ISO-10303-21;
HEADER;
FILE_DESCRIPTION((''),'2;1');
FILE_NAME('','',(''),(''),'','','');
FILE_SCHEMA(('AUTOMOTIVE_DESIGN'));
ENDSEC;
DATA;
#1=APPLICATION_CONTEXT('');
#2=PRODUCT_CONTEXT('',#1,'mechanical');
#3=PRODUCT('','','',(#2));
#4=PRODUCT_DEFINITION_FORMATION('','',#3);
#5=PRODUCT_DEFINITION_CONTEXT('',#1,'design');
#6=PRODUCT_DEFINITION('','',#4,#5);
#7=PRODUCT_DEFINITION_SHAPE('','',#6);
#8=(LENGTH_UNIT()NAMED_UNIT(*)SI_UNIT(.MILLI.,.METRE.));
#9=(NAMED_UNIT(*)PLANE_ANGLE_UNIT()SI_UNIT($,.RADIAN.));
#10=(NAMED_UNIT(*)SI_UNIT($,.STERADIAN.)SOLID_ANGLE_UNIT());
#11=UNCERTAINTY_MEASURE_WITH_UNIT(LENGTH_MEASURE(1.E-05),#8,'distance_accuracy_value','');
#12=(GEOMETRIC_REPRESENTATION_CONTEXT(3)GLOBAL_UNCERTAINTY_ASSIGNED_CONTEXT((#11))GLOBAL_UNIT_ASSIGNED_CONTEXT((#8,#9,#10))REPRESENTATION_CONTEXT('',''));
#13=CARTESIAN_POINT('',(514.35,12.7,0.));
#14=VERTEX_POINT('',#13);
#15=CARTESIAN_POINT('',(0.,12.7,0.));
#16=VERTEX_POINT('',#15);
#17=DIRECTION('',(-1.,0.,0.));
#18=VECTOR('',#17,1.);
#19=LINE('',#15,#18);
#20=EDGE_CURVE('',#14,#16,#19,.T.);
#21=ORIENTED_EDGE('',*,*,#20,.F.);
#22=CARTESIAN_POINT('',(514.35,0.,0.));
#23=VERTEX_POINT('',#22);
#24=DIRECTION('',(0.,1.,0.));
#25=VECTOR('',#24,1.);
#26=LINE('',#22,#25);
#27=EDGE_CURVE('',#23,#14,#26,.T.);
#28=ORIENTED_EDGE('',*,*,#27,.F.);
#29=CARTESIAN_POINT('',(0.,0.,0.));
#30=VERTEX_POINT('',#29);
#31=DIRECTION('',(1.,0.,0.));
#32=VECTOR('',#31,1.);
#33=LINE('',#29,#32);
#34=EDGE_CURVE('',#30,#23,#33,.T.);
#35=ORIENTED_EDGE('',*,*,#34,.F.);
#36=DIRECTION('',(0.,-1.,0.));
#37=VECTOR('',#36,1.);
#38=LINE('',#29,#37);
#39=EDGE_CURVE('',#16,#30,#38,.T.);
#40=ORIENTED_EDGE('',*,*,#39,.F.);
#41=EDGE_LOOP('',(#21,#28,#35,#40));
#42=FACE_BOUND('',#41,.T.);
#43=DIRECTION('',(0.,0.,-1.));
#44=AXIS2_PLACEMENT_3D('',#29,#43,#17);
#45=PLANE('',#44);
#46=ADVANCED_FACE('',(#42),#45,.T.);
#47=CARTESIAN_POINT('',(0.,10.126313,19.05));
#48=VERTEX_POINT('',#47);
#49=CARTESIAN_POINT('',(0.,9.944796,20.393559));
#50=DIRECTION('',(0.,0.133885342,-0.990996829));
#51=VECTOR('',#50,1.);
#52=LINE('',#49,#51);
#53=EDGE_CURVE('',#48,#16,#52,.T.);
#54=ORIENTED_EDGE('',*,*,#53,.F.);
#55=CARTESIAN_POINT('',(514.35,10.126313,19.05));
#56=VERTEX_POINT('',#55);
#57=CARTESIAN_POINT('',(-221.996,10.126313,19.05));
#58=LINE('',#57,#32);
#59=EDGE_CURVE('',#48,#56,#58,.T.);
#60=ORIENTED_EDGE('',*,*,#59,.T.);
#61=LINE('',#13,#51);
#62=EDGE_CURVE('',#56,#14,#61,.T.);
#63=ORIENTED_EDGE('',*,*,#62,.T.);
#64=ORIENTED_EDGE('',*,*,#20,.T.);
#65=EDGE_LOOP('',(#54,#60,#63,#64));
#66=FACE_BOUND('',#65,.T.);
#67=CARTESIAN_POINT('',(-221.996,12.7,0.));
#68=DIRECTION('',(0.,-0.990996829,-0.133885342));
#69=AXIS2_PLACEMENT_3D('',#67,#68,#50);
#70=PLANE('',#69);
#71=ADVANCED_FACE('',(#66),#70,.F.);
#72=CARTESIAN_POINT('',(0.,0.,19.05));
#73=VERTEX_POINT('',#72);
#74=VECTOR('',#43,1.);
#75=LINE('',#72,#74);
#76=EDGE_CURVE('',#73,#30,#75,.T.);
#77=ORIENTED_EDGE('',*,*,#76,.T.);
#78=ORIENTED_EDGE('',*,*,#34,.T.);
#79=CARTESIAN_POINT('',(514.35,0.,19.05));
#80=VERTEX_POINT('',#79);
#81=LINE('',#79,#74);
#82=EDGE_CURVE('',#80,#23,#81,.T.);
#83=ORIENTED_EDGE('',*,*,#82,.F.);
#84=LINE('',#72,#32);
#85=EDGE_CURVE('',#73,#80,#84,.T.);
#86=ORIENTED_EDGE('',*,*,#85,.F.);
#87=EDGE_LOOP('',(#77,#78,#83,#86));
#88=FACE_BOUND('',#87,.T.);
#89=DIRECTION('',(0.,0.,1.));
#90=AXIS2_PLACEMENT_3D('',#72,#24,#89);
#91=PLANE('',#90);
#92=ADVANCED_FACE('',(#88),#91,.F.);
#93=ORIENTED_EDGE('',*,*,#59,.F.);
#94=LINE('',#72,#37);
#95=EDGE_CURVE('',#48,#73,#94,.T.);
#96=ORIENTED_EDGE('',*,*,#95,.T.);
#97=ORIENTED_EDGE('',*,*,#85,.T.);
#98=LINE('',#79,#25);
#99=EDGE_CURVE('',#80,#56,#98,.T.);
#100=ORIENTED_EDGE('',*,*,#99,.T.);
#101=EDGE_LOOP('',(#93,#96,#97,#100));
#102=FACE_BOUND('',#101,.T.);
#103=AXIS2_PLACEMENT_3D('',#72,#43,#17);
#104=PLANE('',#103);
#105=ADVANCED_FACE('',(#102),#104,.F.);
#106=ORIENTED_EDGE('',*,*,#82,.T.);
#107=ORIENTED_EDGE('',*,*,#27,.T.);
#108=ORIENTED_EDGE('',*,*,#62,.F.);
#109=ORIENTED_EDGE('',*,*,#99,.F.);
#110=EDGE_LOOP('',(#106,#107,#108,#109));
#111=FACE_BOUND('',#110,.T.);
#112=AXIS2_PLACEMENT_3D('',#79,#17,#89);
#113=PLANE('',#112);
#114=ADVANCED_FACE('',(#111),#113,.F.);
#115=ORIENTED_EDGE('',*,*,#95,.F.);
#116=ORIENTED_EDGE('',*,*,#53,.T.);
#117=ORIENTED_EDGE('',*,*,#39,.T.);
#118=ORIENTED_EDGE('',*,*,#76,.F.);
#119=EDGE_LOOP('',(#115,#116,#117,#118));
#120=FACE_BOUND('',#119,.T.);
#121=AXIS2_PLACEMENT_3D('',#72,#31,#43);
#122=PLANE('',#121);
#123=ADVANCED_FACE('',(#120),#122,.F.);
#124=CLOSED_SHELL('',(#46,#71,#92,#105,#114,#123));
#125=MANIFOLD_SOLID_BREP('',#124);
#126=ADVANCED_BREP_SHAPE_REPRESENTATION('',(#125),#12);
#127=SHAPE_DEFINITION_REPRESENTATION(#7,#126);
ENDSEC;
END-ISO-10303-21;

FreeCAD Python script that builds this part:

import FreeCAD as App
import Part
import Sketcher

V = App.Vector
Q = App.Units.Quantity

doc = App.newDocument("Part")
params = doc.addObject("Spreadsheet::Sheet", "Params")
for row, (alias, value) in enumerate([
    ("sketch1_height", "0.5 in"),
    ("sketch1_width", "20.25 in"),
    ("pad1_length", "0.75 in"),
    ("sketch2_height", "0.75 in"),
    ("pocket1_length", "28.99 in"),
], start=1):
    params.set(f"A{row}", alias)
    params.set(f"B{row}", "=" + value)
    params.setAlias(f"B{row}", alias)

body = doc.addObject("PartDesign::Body", "Body")

# Sketch on XY plane
sketch1 = doc.addObject("Sketcher::SketchObject", "Sketch")
body.addObject(sketch1)
sketch1.AttachmentSupport = (doc.XY_Plane, [""])
sketch1.MapMode = "FlatFace"
sketch1.addGeometry(Part.LineSegment(V(0, 13, 0), V(0, 0, 0)), False)
sketch1.addGeometry(Part.LineSegment(V(0, 0, 0), V(514, 0, 0)), False)
sketch1.addGeometry(Part.LineSegment(V(514, 0, 0), V(514, 13, 0)), False)
sketch1.addGeometry(Part.LineSegment(V(514, 13, 0), V(0, 13, 0)), False)
sketch1.addConstraint(Sketcher.Constraint("Coincident", 0, 2, 1, 1))
sketch1.addConstraint(Sketcher.Constraint("Coincident", 1, 2, 2, 1))
sketch1.addConstraint(Sketcher.Constraint("Coincident", 2, 2, 3, 1))
sketch1.addConstraint(Sketcher.Constraint("Coincident", 3, 2, 0, 1))
sketch1.addConstraint(Sketcher.Constraint("Vertical", 0))
sketch1.addConstraint(Sketcher.Constraint("Horizontal", 1))
sketch1.addConstraint(Sketcher.Constraint("Vertical", 2))
sketch1.addConstraint(Sketcher.Constraint("Horizontal", 3))
sketch1.addConstraint(Sketcher.Constraint("Coincident", 0, 2, -1, 1))
sketch1.addConstraint(Sketcher.Constraint("DistanceY", 0, 2, 0, 1, Q("0.5 in")))
sketch1.addConstraint(Sketcher.Constraint("DistanceX", 1, 1, 1, 2, Q("20.25 in")))
sketch1.setExpression("Constraints[9]", "Params.sketch1_height")
sketch1.setExpression("Constraints[10]", "Params.sketch1_width")
pad1 = doc.addObject("PartDesign::Pad", "Pad")
body.addObject(pad1)
pad1.Profile = sketch1
pad1.setExpression("Length", "Params.pad1_length")

# Sketch on YZ plane
sketch2 = doc.addObject("Sketcher::SketchObject", "Sketch001")
body.addObject(sketch2)
sketch2.AttachmentSupport = (doc.YZ_Plane, [""])
sketch2.MapMode = "FlatFace"
sketch2.AttachmentOffset = App.Placement(V(0, 0, 20.25 * 25.4), App.Rotation())
sketch2.addGeometry(Part.LineSegment(V(10.1, 19.1, 0), V(12.7, 0, 0)), False)
sketch2.addGeometry(Part.LineSegment(V(12.7, 0, 0), V(12.7, 19.1, 0)), False)
sketch2.addGeometry(Part.LineSegment(V(12.7, 19.1, 0), V(10.1, 19.1, 0)), False)
sketch2.addConstraint(Sketcher.Constraint("Coincident", 0, 2, 1, 1))
sketch2.addConstraint(Sketcher.Constraint("Coincident", 1, 2, 2, 1))
sketch2.addConstraint(Sketcher.Constraint("Coincident", 2, 2, 0, 1))
sketch2.addConstraint(Sketcher.Constraint("Vertical", 1))
sketch2.addConstraint(Sketcher.Constraint("Horizontal", 2))
sketch2.addConstraint(Sketcher.Constraint("PointOnObject", 0, 2, -1))
sketch2.addConstraint(Sketcher.Constraint("DistanceY", 1, 1, 1, 2, Q("0.75 in")))
sketch2.addConstraint(Sketcher.Constraint("DistanceX", -1, 1, 0, 2, Q("0.5 in")))
sketch2.addConstraint(Sketcher.Constraint("Distance", 0, Q("19.223069 mm")))
sketch2.setExpression("Constraints[6]", "Params.sketch2_height")
pocket1 = doc.addObject("PartDesign::Pocket", "Pocket")
body.addObject(pocket1)
pocket1.Profile = sketch2
pocket1.setExpression("Length", "Params.pocket1_length")

doc.recompute()
